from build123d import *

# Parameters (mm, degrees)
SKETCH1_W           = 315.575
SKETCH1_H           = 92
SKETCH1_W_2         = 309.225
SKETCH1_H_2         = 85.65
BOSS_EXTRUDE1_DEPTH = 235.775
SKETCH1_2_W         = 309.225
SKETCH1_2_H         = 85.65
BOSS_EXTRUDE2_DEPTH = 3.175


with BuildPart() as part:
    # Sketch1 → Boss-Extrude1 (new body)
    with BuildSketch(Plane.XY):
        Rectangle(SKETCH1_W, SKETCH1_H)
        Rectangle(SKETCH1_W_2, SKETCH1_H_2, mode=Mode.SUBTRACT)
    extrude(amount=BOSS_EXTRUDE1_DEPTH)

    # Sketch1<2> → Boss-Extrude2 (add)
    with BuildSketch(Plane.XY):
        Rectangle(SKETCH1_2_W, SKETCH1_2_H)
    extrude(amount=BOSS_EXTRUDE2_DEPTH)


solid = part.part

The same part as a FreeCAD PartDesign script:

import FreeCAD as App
import Part
import Sketcher
Q = App.Units.Quantity

doc = App.newDocument("Part")
body = doc.addObject("PartDesign::Body", "Body")

# Sketch on XY plane
sketch1 = body.newObject("Sketcher::SketchObject", "Sketch")
sketch1.AttachmentSupport = (doc.getObject("XY_Plane"), [""])
sketch1.MapMode = "FlatFace"
sketch1.addGeometry(Part.LineSegment(App.Vector(-158, 46, 0), App.Vector(-158, -46, 0)), False)
sketch1.addGeometry(Part.LineSegment(App.Vector(-158, -46, 0), App.Vector(158, -46, 0)), False)
sketch1.addGeometry(Part.LineSegment(App.Vector(158, -46, 0), App.Vector(158, 46, 0)), False)
sketch1.addGeometry(Part.LineSegment(App.Vector(158, 46, 0), App.Vector(-158, 46, 0)), False)
sketch1.addGeometry(Part.LineSegment(App.Vector(155, -43, 0), App.Vector(-155, -43, 0)), False)
sketch1.addGeometry(Part.LineSegment(App.Vector(-155, -43, 0), App.Vector(-155, 43, 0)), False)
sketch1.addGeometry(Part.LineSegment(App.Vector(-155, 43, 0), App.Vector(155, 43, 0)), False)
sketch1.addGeometry(Part.LineSegment(App.Vector(155, 43, 0), App.Vector(155, -43, 0)), False)
sketch1.addConstraint(Sketcher.Constraint("Coincident", 0, 2, 1, 1))
sketch1.addConstraint(Sketcher.Constraint("Coincident", 1, 2, 2, 1))
sketch1.addConstraint(Sketcher.Constraint("Coincident", 2, 2, 3, 1))
sketch1.addConstraint(Sketcher.Constraint("Coincident", 3, 2, 0, 1))
sketch1.addConstraint(Sketcher.Constraint("Coincident", 4, 2, 5, 1))
sketch1.addConstraint(Sketcher.Constraint("Coincident", 5, 2, 6, 1))
sketch1.addConstraint(Sketcher.Constraint("Coincident", 6, 2, 7, 1))
sketch1.addConstraint(Sketcher.Constraint("Coincident", 7, 2, 4, 1))
sketch1.addConstraint(Sketcher.Constraint("Vertical", 0))
sketch1.addConstraint(Sketcher.Constraint("Horizontal", 1))
sketch1.addConstraint(Sketcher.Constraint("Vertical", 2))
sketch1.addConstraint(Sketcher.Constraint("Horizontal", 3))
sketch1.addConstraint(Sketcher.Constraint("Horizontal", 4))
sketch1.addConstraint(Sketcher.Constraint("Vertical", 5))
sketch1.addConstraint(Sketcher.Constraint("Horizontal", 6))
sketch1.addConstraint(Sketcher.Constraint("Vertical", 7))
sketch1.addConstraint(Sketcher.Constraint("Symmetric", 0, 2, 2, 2, -1, 1))
sketch1.addConstraint(Sketcher.Constraint("Symmetric", 4, 2, 6, 2, -1, 1))
sketch1.addConstraint(Sketcher.Constraint("DistanceY", 0, 2, 0, 1, Q("92 mm")))
sketch1.addConstraint(Sketcher.Constraint("DistanceY", 5, 1, 5, 2, Q("85.65 mm")))
sketch1.addConstraint(Sketcher.Constraint("DistanceX", 4, 2, 1, 2, Q("312.4 mm")))
sketch1.addConstraint(Sketcher.Constraint("DistanceX", 1, 1, 1, 2, Q("315.575 mm")))
pad1 = body.newObject("PartDesign::Pad", "Pad")
pad1.Profile = sketch1
pad1.Length = 235.775

# Sketch on XY plane
sketch2 = body.newObject("Sketcher::SketchObject", "Sketch001")
sketch2.AttachmentSupport = (doc.getObject("XY_Plane"), [""])
sketch2.MapMode = "FlatFace"
sketch2.addGeometry(Part.LineSegment(App.Vector(-155, 43, 0), App.Vector(-155, -43, 0)), False)
sketch2.addGeometry(Part.LineSegment(App.Vector(-155, -43, 0), App.Vector(155, -43, 0)), False)
sketch2.addGeometry(Part.LineSegment(App.Vector(155, -43, 0), App.Vector(155, 43, 0)), False)
sketch2.addGeometry(Part.LineSegment(App.Vector(155, 43, 0), App.Vector(-155, 43, 0)), False)
sketch2.addConstraint(Sketcher.Constraint("Coincident", 0, 2, 1, 1))
sketch2.addConstraint(Sketcher.Constraint("Coincident", 1, 2, 2, 1))
sketch2.addConstraint(Sketcher.Constraint("Coincident", 2, 2, 3, 1))
sketch2.addConstraint(Sketcher.Constraint("Coincident", 3, 2, 0, 1))
sketch2.addConstraint(Sketcher.Constraint("Vertical", 0))
sketch2.addConstraint(Sketcher.Constraint("Horizontal", 1))
sketch2.addConstraint(Sketcher.Constraint("Vertical", 2))
sketch2.addConstraint(Sketcher.Constraint("Horizontal", 3))
sketch2.addConstraint(Sketcher.Constraint("Symmetric", 0, 2, 2, 2, -1, 1))
sketch2.addConstraint(Sketcher.Constraint("DistanceY", 0, 2, 0, 1, Q("85.65 mm")))
sketch2.addConstraint(Sketcher.Constraint("DistanceX", 1, 1, 1, 2, Q("309.225 mm")))
pad2 = body.newObject("PartDesign::Pad", "Pad001")
pad2.Profile = sketch2
pad2.Length = 3.175

doc.recompute()
